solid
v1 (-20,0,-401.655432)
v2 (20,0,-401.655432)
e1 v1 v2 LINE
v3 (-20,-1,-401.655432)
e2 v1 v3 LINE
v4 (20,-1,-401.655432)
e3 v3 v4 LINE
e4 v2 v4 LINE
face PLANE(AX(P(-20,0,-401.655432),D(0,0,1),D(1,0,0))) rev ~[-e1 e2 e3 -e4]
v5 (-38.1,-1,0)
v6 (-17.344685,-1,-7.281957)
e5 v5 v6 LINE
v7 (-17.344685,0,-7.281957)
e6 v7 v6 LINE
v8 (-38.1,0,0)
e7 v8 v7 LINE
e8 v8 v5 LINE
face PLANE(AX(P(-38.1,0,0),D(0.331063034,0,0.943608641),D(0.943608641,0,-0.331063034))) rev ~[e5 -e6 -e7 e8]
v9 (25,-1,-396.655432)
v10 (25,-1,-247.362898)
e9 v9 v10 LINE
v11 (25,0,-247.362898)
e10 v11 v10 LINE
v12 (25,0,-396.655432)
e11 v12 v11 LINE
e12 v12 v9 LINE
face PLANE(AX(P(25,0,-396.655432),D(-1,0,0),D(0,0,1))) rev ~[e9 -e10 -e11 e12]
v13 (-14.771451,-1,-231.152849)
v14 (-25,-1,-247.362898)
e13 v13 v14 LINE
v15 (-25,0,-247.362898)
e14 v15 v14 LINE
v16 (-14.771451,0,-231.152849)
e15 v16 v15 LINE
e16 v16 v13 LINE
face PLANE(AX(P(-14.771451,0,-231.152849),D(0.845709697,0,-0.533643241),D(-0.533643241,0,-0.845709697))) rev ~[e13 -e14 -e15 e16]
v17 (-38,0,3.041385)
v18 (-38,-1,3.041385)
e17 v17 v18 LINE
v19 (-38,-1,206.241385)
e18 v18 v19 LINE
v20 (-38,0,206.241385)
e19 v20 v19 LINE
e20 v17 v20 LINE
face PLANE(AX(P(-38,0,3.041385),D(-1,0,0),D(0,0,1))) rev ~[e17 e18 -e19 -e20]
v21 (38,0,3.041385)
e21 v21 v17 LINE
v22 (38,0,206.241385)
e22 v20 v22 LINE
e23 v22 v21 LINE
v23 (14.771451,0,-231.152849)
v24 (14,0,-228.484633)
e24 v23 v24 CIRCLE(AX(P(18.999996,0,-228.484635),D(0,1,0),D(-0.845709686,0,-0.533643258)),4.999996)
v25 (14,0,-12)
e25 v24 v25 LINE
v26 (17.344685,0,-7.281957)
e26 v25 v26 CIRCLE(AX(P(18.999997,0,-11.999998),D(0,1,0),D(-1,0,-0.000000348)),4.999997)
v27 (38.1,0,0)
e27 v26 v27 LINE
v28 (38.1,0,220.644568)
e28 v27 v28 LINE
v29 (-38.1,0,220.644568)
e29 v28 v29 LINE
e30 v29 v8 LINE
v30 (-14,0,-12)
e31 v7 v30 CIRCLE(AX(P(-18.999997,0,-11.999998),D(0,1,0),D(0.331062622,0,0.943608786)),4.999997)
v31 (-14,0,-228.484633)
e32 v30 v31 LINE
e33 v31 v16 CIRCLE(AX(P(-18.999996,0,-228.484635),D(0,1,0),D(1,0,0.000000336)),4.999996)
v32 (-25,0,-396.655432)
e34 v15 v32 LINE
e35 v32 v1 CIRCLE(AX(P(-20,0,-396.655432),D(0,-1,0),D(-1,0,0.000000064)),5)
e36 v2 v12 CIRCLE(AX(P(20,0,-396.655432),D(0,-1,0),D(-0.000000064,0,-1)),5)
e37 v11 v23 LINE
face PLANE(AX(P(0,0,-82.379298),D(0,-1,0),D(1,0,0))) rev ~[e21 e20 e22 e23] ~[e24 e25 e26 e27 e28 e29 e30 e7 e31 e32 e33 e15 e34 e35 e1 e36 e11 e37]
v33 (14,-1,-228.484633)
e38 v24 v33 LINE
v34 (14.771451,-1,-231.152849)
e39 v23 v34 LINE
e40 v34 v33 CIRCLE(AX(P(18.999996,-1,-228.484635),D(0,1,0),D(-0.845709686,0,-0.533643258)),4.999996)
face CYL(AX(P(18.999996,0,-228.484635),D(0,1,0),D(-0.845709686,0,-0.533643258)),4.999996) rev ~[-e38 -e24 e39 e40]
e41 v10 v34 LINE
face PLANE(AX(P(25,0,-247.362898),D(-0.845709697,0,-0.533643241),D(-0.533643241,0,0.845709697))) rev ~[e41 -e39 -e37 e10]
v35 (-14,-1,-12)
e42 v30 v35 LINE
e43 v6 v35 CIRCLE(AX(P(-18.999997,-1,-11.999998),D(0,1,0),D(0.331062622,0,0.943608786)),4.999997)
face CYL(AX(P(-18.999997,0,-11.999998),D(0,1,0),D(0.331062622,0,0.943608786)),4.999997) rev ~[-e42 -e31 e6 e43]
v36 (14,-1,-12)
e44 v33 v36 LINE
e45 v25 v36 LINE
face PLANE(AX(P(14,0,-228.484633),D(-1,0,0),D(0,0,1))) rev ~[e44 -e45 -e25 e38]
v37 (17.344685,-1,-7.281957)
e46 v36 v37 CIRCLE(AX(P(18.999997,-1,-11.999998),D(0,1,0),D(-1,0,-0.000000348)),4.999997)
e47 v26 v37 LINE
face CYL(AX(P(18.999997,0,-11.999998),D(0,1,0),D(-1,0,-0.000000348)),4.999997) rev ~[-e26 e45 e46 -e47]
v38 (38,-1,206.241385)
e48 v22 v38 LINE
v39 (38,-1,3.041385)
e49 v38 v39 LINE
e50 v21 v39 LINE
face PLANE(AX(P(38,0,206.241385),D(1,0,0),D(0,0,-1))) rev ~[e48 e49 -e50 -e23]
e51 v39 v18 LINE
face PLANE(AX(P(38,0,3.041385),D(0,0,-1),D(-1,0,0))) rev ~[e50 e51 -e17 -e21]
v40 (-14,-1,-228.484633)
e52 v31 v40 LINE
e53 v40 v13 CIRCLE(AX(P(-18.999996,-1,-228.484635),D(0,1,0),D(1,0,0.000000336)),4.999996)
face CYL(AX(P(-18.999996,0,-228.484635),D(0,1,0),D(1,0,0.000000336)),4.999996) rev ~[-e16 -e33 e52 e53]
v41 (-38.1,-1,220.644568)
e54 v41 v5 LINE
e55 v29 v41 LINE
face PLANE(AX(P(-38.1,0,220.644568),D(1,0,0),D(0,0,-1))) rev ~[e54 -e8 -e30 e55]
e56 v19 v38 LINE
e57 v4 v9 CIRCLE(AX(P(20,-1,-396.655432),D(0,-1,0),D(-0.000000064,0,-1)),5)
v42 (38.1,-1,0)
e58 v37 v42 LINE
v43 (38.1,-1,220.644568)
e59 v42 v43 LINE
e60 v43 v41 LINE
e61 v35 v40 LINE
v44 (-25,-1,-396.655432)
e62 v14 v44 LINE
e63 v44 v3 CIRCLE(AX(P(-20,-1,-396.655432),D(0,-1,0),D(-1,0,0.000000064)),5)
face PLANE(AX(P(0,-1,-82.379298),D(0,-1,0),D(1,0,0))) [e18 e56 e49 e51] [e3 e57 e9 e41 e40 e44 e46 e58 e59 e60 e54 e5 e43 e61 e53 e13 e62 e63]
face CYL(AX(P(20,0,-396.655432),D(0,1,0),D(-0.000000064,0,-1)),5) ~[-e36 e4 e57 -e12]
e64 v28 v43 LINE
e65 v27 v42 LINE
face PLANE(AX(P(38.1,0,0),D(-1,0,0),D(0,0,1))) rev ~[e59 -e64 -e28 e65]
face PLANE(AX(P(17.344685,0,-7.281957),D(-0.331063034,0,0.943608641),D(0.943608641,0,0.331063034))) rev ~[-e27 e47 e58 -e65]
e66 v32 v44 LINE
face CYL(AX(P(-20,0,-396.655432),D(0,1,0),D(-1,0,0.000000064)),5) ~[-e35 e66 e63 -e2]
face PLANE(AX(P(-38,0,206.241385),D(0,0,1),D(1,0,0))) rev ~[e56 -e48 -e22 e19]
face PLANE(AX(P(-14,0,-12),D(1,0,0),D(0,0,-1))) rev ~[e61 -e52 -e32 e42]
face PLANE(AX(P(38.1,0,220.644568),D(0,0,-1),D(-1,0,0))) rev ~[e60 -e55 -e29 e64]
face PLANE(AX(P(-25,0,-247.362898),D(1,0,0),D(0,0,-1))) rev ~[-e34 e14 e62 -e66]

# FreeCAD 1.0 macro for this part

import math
import FreeCAD as App
import Part
import Sketcher
from FreeCAD import Vector

doc = App.newDocument("Part")
body = doc.addObject("PartDesign::Body", "Body")

sketch1 = doc.addObject("Sketcher::SketchObject", "Sketch")
body.addObject(sketch1)
sketch1.AttachmentSupport = (doc.XZ_Plane, [""])
sketch1.MapMode = "FlatFace"
sketch1.addGeometry(Part.LineSegment(Vector(-38.1, 220.6, 0), Vector(-38.1, 0, 0)), False)
sketch1.addGeometry(Part.LineSegment(Vector(-38.1, 0, 0), Vector(-17.3, -7.3, 0)), False)
sketch1.addGeometry(Part.ArcOfCircle(Part.Circle(Vector(-19, -12, 0), Vector(0, 0, 1), 5), math.radians(0), math.radians(71)), False)
sketch1.addGeometry(Part.LineSegment(Vector(-14, -12, 0), Vector(-14, -228.5, 0)), False)
sketch1.addGeometry(Part.ArcOfCircle(Part.Circle(Vector(-19, -228.5, 0), Vector(0, 0, 1), 5), math.radians(-32), math.radians(0)), False)
sketch1.addGeometry(Part.LineSegment(Vector(-14.8, -231.2, 0), Vector(-25, -247.4, 0)), False)
sketch1.addGeometry(Part.LineSegment(Vector(-25, -247.4, 0), Vector(-25, -396.7, 0)), False)
sketch1.addGeometry(Part.ArcOfCircle(Part.Circle(Vector(-20, -396.7, 0), Vector(0, 0, 1), 5), math.radians(180), math.radians(270)), False)
sketch1.addGeometry(Part.LineSegment(Vector(-20, -401.7, 0), Vector(20, -401.7, 0)), False)
sketch1.addGeometry(Part.ArcOfCircle(Part.Circle(Vector(20, -396.7, 0), Vector(0, 0, 1), 5), math.radians(-90), math.radians(0)), False)
sketch1.addGeometry(Part.LineSegment(Vector(25, -396.7, 0), Vector(25, -247.4, 0)), False)
sketch1.addGeometry(Part.LineSegment(Vector(25, -247.4, 0), Vector(14.8, -231.2, 0)), False)
sketch1.addGeometry(Part.ArcOfCircle(Part.Circle(Vector(19, -228.5, 0), Vector(0, 0, 1), 5), math.radians(180), math.radians(212)), False)
sketch1.addGeometry(Part.LineSegment(Vector(14, -228.5, 0), Vector(14, -12, 0)), False)
sketch1.addGeometry(Part.ArcOfCircle(Part.Circle(Vector(19, -12, 0), Vector(0, 0, 1), 5), math.radians(109), math.radians(180)), False)
sketch1.addGeometry(Part.LineSegment(Vector(17.3, -7.3, 0), Vector(38.1, 0, 0)), False)
sketch1.addGeometry(Part.LineSegment(Vector(38.1, 0, 0), Vector(38.1, 220.6, 0)), False)
sketch1.addGeometry(Part.LineSegment(Vector(38.1, 220.6, 0), Vector(-38.1, 220.6, 0)), False)
sketch1.addGeometry(Part.LineSegment(Vector(-38, 3, 0), Vector(-38, 206.2, 0)), False)
sketch1.addGeometry(Part.LineSegment(Vector(-38, 206.2, 0), Vector(38, 206.2, 0)), False)
sketch1.addGeometry(Part.LineSegment(Vector(38, 206.2, 0), Vector(38, 3, 0)), False)
sketch1.addGeometry(Part.LineSegment(Vector(38, 3, 0), Vector(-38, 3, 0)), False)
sketch1.addConstraint(Sketcher.Constraint("Coincident", 0, 2, 1, 1))
sketch1.addConstraint(Sketcher.Constraint("Tangent", 1, 2, 2, 2))
sketch1.addConstraint(Sketcher.Constraint("Tangent", 2, 1, 3, 1))
sketch1.addConstraint(Sketcher.Constraint("Tangent", 3, 2, 4, 2))
sketch1.addConstraint(Sketcher.Constraint("Tangent", 4, 1, 5, 1))
sketch1.addConstraint(Sketcher.Constraint("Coincident", 5, 2, 6, 1))
sketch1.addConstraint(Sketcher.Constraint("Tangent", 6, 2, 7, 1))
sketch1.addConstraint(Sketcher.Constraint("Tangent", 7, 2, 8, 1))
sketch1.addConstraint(Sketcher.Constraint("Tangent", 8, 2, 9, 1))
sketch1.addConstraint(Sketcher.Constraint("Tangent", 9, 2, 10, 1))
sketch1.addConstraint(Sketcher.Constraint("Coincident", 10, 2, 11, 1))
sketch1.addConstraint(Sketcher.Constraint("Tangent", 11, 2, 12, 2))
sketch1.addConstraint(Sketcher.Constraint("Tangent", 12, 1, 13, 1))
sketch1.addConstraint(Sketcher.Constraint("Tangent", 13, 2, 14, 2))
sketch1.addConstraint(Sketcher.Constraint("Tangent", 14, 1, 15, 1))
sketch1.addConstraint(Sketcher.Constraint("Coincident", 15, 2, 16, 1))
sketch1.addConstraint(Sketcher.Constraint("Coincident", 16, 2, 17, 1))
sketch1.addConstraint(Sketcher.Constraint("Coincident", 17, 2, 0, 1))
sketch1.addConstraint(Sketcher.Constraint("Coincident", 18, 2, 19, 1))
sketch1.addConstraint(Sketcher.Constraint("Coincident", 19, 2, 20, 1))
sketch1.addConstraint(Sketcher.Constraint("Coincident", 20, 2, 21, 1))
sketch1.addConstraint(Sketcher.Constraint("Coincident", 21, 2, 18, 1))
sketch1.addConstraint(Sketcher.Constraint("Vertical", 0))
sketch1.addConstraint(Sketcher.Constraint("Vertical", 3))
sketch1.addConstraint(Sketcher.Constraint("Vertical", 6))
sketch1.addConstraint(Sketcher.Constraint("Horizontal", 8))
sketch1.addConstraint(Sketcher.Constraint("Vertical", 10))
sketch1.addConstraint(Sketcher.Constraint("Vertical", 13))
sketch1.addConstraint(Sketcher.Constraint("Vertical", 16))
sketch1.addConstraint(Sketcher.Constraint("Horizontal", 17))
sketch1.addConstraint(Sketcher.Constraint("Vertical", 18))
sketch1.addConstraint(Sketcher.Constraint("Horizontal", 19))
sketch1.addConstraint(Sketcher.Constraint("Vertical", 20))
sketch1.addConstraint(Sketcher.Constraint("Horizontal", 21))
sketch1.addConstraint(Sketcher.Constraint("Equal", 2, 4))
sketch1.addConstraint(Sketcher.Constraint("Equal", 7, 9))
sketch1.addConstraint(Sketcher.Constraint("Equal", 4, 12))
sketch1.addConstraint(Sketcher.Constraint("Equal", 12, 14))
sketch1.addConstraint(Sketcher.Constraint("Symmetric", 0, 2, 15, 2, -1, 1))
sketch1.addConstraint(Sketcher.Constraint("Symmetric", 4, 3, 12, 3, -2))
sketch1.addConstraint(Sketcher.Constraint("Symmetric", 5, 2, 10, 2, -2))
sketch1.addConstraint(Sketcher.Constraint("Symmetric", 1, 2, 14, 1, -2))
sketch1.addConstraint(Sketcher.Constraint("Radius", 7, 5.0))
sketch1.addConstraint(Sketcher.Constraint("DistanceX", 8, 1, 8, 2, 40.0))
sketch1.addConstraint(Sketcher.Constraint("DistanceX", 19, 1, 19, 2, 76.0))
sketch1.addConstraint(Sketcher.Constraint("DistanceX", 17, 2, 17, 1, 76.2))
sketch1.addConstraint(Sketcher.Constraint("DistanceY", 18, 1, 18, 2, 203.2))
sketch1.addConstraint(Sketcher.Constraint("DistanceY", 2, 3, -1, 1, 11.999998))
sketch1.addConstraint(Sketcher.Constraint("DistanceX", 2, 1, -1, 1, 14.0))
sketch1.addConstraint(Sketcher.Constraint("DistanceX", 18, 2, -1, 1, 38.0))
sketch1.addConstraint(Sketcher.Constraint("Radius", 2, 4.999997))
sketch1.addConstraint(Sketcher.Constraint("DistanceY", 0, 2, 0, 1, 220.644568))
sketch1.addConstraint(Sketcher.Constraint("DistanceY", 5, 2, -1, 1, 247.362898))
sketch1.addConstraint(Sketcher.Constraint("DistanceY", 7, 3, 3, 2, 168.170799))
sketch1.addConstraint(Sketcher.Constraint("DistanceX", 4, 1, 11, 2, 29.542902))
sketch1.addConstraint(Sketcher.Constraint("DistanceY", 14, 1, 19, 2, 213.523342))
pad1 = doc.addObject("PartDesign::Pad", "Pad")
body.addObject(pad1)
pad1.Profile = sketch1
pad1.Length = 1

doc.recompute()
